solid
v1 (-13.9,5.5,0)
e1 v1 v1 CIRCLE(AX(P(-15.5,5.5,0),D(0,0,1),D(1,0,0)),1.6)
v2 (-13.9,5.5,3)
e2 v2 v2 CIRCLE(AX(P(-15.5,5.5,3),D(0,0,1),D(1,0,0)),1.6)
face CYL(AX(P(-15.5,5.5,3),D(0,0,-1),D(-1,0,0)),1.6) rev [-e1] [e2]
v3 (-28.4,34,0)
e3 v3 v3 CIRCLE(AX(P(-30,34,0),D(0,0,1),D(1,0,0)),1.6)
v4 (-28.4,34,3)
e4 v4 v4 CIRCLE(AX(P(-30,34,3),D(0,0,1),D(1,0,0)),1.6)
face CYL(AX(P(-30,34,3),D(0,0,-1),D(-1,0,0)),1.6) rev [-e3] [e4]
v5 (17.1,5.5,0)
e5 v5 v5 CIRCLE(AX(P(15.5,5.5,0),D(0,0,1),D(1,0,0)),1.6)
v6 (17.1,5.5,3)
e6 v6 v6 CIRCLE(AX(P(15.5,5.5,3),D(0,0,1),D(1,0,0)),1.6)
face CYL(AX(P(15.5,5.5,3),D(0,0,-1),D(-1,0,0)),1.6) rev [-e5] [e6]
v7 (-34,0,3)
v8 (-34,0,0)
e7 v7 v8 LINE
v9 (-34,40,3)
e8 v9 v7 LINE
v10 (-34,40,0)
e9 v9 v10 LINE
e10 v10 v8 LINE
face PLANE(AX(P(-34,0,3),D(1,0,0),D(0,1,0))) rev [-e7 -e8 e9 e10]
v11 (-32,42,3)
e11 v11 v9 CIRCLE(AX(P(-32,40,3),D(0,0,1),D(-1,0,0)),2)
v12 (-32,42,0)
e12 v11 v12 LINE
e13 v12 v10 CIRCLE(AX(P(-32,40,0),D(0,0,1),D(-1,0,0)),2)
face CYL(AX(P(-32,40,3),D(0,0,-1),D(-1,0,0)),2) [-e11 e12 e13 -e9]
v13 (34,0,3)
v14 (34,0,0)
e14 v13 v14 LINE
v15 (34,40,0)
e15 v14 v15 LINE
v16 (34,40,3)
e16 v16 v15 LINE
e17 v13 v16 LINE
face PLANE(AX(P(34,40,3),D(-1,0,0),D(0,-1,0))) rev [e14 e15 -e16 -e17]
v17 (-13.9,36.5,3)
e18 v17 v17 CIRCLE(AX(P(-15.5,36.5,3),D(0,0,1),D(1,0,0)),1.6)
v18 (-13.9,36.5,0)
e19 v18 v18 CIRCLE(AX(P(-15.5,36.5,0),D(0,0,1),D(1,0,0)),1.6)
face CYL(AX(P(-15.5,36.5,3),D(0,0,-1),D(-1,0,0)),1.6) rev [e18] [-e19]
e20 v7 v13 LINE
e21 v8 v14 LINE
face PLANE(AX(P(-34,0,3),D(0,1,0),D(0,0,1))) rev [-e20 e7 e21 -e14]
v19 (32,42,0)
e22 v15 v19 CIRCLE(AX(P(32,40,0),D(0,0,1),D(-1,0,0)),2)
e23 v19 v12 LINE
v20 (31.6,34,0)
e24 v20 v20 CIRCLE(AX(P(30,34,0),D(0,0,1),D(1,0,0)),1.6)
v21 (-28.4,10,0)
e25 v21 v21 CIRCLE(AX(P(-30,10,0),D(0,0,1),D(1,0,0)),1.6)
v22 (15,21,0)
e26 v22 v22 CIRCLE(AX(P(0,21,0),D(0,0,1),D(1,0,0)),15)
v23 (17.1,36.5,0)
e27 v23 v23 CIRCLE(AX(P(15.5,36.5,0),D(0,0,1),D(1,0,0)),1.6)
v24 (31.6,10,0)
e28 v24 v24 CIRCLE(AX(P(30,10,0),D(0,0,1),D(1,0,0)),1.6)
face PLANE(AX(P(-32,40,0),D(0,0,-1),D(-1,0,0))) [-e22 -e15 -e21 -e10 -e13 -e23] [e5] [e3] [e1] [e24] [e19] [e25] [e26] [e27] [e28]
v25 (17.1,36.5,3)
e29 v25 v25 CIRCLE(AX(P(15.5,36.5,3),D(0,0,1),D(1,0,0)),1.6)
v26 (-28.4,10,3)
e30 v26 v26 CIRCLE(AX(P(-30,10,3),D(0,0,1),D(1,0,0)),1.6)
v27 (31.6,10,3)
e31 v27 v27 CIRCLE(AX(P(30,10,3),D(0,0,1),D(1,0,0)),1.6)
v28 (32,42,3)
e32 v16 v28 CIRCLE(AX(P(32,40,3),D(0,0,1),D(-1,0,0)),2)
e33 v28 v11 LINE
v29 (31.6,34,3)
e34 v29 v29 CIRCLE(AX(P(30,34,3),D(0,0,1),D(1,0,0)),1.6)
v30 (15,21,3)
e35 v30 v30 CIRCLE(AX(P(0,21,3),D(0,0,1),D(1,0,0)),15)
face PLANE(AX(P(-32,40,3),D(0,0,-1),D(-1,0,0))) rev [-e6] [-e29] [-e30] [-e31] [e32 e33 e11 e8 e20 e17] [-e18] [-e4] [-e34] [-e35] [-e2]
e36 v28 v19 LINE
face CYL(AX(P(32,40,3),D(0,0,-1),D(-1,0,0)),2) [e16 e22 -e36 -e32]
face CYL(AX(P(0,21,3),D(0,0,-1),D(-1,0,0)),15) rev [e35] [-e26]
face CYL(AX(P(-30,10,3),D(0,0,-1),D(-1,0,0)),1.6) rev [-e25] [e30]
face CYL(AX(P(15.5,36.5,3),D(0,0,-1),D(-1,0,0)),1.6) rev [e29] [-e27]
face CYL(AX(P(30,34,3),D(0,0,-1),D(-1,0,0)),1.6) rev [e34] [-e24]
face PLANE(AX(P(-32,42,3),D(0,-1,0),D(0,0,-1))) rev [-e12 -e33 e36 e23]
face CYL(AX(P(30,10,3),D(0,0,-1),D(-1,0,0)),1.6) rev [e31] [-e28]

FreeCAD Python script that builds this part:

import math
import FreeCAD as App
import Part
import Sketcher

V = App.Vector

doc = App.newDocument("Part")
body = doc.addObject("PartDesign::Body", "Body")

# Sketch on XY plane
sketch1 = body.newObject("Sketcher::SketchObject", "Sketch")
sketch1.AttachmentSupport = (doc.getObject("XY_Plane"), [""])
sketch1.MapMode = "FlatFace"
sketch1.addGeometry([
    Part.LineSegment(V(-34, 0, 0), V(34, 0, 0)),  # 0
    Part.LineSegment(V(34, 0, 0), V(34, 40, 0)),  # 1
    Part.ArcOfCircle(Part.Circle(V(32, 40, 0), V(0, 0, 1), 2), math.radians(0), math.radians(90)),  # 2
    Part.LineSegment(V(32, 42, 0), V(-32, 42, 0)),  # 3
    Part.ArcOfCircle(Part.Circle(V(-32, 40, 0), V(0, 0, 1), 2), math.radians(90), math.radians(180)),  # 4
    Part.LineSegment(V(-34, 40, 0), V(-34, 0, 0)),  # 5
    Part.Circle(V(-30, 10, 0), V(0, 0, 1), 1.6),  # 6
    Part.Circle(V(-15.5, 5.5, 0), V(0, 0, 1), 1.6),  # 7
    Part.Circle(V(15.5, 5.5, 0), V(0, 0, 1), 1.6),  # 8
    Part.Circle(V(30, 10, 0), V(0, 0, 1), 1.6),  # 9
    Part.Circle(V(0, 21, 0), V(0, 0, 1), 15),  # 10
    Part.Circle(V(-30, 34, 0), V(0, 0, 1), 1.6),  # 11
    Part.Circle(V(-15.5, 36.5, 0), V(0, 0, 1), 1.6),  # 12
    Part.Circle(V(15.5, 36.5, 0), V(0, 0, 1), 1.6),  # 13
    Part.Circle(V(30, 34, 0), V(0, 0, 1), 1.6),  # 14
], False)
sketch1.addConstraint([
    Sketcher.Constraint("Coincident", 0, 2, 1, 1),
    Sketcher.Constraint("Tangent", 1, 2, 2, 1),
    Sketcher.Constraint("Tangent", 2, 2, 3, 1),
    Sketcher.Constraint("Tangent", 3, 2, 4, 1),
    Sketcher.Constraint("Tangent", 4, 2, 5, 1),
    Sketcher.Constraint("Coincident", 5, 2, 0, 1),
    Sketcher.Constraint("Horizontal", 0),
    Sketcher.Constraint("Vertical", 1),
    Sketcher.Constraint("Horizontal", 3),
    Sketcher.Constraint("Vertical", 5),
    Sketcher.Constraint("Equal", 2, 4),
    Sketcher.Constraint("Equal", 6, 7),
    Sketcher.Constraint("Equal", 7, 8),
    Sketcher.Constraint("Equal", 8, 9),
    Sketcher.Constraint("Equal", 9, 11),
    Sketcher.Constraint("Equal", 11, 12),
    Sketcher.Constraint("Equal", 12, 13),
    Sketcher.Constraint("Equal", 13, 14),
    Sketcher.Constraint("Symmetric", 0, 2, 5, 2, -1, 1),
    Sketcher.Constraint("Symmetric", 7, 3, 8, 3, -2),
    Sketcher.Constraint("Symmetric", 6, 3, 9, 3, -2),
    Sketcher.Constraint("Symmetric", 12, 3, 13, 3, -2),
    Sketcher.Constraint("Symmetric", 11, 3, 14, 3, -2),
    Sketcher.Constraint("PointOnObject", 10, 3, -2),
    Sketcher.Constraint("Vertical", 6, 3, 11, 3),
    Sketcher.Constraint("Vertical", 7, 3, 12, 3),
    Sketcher.Constraint("Diameter", 10, 30.0),
    Sketcher.Constraint("Radius", 2, 2.0),
    Sketcher.Constraint("Diameter", 6, 3.2),
    Sketcher.Constraint("DistanceX", 0, 1, 0, 2, 68.0),
    Sketcher.Constraint("DistanceY", 1, 1, 1, 2, 40.0),
    Sketcher.Constraint("DistanceX", 6, 3, -1, 1, 30.0),
    Sketcher.Constraint("DistanceY", -1, 1, 6, 3, 10.0),
    Sketcher.Constraint("DistanceY", -1, 1, 10, 3, 21.0),
    Sketcher.Constraint("DistanceY", -1, 1, 11, 3, 34.0),
    Sketcher.Constraint("DistanceX", 7, 3, 8, 3, 31.0),
    Sketcher.Constraint("DistanceY", 7, 3, 12, 3, 31.0),
    Sketcher.Constraint("DistanceY", -1, 1, 7, 3, 5.5),
])
pad1 = body.newObject("PartDesign::Pad", "Pad")
pad1.Profile = sketch1
pad1.Length = 3

doc.recompute()
